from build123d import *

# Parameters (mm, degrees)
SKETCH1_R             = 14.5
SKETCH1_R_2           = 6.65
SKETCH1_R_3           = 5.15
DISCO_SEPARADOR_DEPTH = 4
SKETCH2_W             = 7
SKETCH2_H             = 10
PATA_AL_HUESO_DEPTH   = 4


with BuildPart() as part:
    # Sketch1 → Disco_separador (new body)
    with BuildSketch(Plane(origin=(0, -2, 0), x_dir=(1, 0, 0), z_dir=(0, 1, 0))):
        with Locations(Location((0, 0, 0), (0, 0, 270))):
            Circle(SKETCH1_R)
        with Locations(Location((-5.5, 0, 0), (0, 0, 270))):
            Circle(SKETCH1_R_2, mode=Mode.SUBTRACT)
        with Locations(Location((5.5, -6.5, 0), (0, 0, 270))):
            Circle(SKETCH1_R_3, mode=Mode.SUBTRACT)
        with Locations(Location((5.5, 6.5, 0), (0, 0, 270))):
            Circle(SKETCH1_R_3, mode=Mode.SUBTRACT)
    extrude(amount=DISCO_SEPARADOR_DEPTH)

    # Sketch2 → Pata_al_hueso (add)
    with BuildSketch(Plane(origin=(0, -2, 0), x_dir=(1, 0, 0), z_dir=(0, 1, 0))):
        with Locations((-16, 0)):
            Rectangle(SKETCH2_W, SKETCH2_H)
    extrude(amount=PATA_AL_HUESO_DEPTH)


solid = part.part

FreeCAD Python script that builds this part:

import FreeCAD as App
import Part
import Sketcher

V = App.Vector

doc = App.newDocument("Part")
body = doc.addObject("PartDesign::Body", "Body")

sketch1 = body.newObject("Sketcher::SketchObject", "Sketch")
sketch1.AttachmentSupport = (doc.getObject("XZ_Plane"), [""])
sketch1.MapMode = "FlatFace"
sketch1.AttachmentOffset = App.Placement(V(0, 0, 2), App.Rotation())
sketch1.addGeometry([
    Part.Circle(V(0, 0, 0), V(0, 0, 1), 14.5),
    Part.Circle(V(-5.5, 0, 0), V(0, 0, 1), 6.65),
    Part.Circle(V(5.5, -6.5, 0), V(0, 0, 1), 5.15),
    Part.Circle(V(5.5, 6.5, 0), V(0, 0, 1), 5.15),
], False)
sketch1.addConstraint([
    Sketcher.Constraint("Coincident", 0, 3, -1, 1),
    Sketcher.Constraint("Equal", 2, 3),
    Sketcher.Constraint("Symmetric", 2, 3, 3, 3, -1),
    Sketcher.Constraint("PointOnObject", 1, 3, -1),
    Sketcher.Constraint("Diameter", 0, 29.0),
    Sketcher.Constraint("Diameter", 1, 13.3),
    Sketcher.Constraint("Diameter", 2, 10.3),
    Sketcher.Constraint("DistanceX", 1, 3, 2, 3, 11.0),
    Sketcher.Constraint("DistanceY", 2, 3, 3, 3, 13.0),
    Sketcher.Constraint("DistanceX", 1, 3, -1, 1, 5.5),
])
pad1 = body.newObject("PartDesign::Pad", "Pad")
pad1.Profile = sketch1
pad1.Length = 4
pad1.Reversed = True

sketch2 = body.newObject("Sketcher::SketchObject", "Sketch001")
sketch2.AttachmentSupport = (doc.getObject("XZ_Plane"), [""])
sketch2.MapMode = "FlatFace"
sketch2.AttachmentOffset = App.Placement(V(0, 0, 2), App.Rotation())
sketch2.addGeometry([
    Part.LineSegment(V(-19.5, -5, 0), V(-19.5, 5, 0)),
    Part.LineSegment(V(-19.5, 5, 0), V(-12.5, 5, 0)),
    Part.LineSegment(V(-12.5, 5, 0), V(-12.5, -5, 0)),
    Part.LineSegment(V(-12.5, -5, 0), V(-19.5, -5, 0)),
], False)
sketch2.addConstraint([
    Sketcher.Constraint("Coincident", 0, 2, 1, 1),
    Sketcher.Constraint("Coincident", 1, 2, 2, 1),
    Sketcher.Constraint("Coincident", 2, 2, 3, 1),
    Sketcher.Constraint("Coincident", 3, 2, 0, 1),
    Sketcher.Constraint("Vertical", 0),
    Sketcher.Constraint("Horizontal", 1),
    Sketcher.Constraint("Vertical", 2),
    Sketcher.Constraint("Horizontal", 3),
    Sketcher.Constraint("DistanceX", 1, 1, 1, 2, 7.0),
    Sketcher.Constraint("DistanceY", 0, 1, 0, 2, 10.0),
    Sketcher.Constraint("DistanceY", -1, 1, 0, 2, 5.0),
    Sketcher.Constraint("DistanceX", 0, 2, -1, 1, 19.5),
])
pad2 = body.newObject("PartDesign::Pad", "Pad001")
pad2.Profile = sketch2
pad2.Length = 4
pad2.Reversed = True

doc.recompute()
